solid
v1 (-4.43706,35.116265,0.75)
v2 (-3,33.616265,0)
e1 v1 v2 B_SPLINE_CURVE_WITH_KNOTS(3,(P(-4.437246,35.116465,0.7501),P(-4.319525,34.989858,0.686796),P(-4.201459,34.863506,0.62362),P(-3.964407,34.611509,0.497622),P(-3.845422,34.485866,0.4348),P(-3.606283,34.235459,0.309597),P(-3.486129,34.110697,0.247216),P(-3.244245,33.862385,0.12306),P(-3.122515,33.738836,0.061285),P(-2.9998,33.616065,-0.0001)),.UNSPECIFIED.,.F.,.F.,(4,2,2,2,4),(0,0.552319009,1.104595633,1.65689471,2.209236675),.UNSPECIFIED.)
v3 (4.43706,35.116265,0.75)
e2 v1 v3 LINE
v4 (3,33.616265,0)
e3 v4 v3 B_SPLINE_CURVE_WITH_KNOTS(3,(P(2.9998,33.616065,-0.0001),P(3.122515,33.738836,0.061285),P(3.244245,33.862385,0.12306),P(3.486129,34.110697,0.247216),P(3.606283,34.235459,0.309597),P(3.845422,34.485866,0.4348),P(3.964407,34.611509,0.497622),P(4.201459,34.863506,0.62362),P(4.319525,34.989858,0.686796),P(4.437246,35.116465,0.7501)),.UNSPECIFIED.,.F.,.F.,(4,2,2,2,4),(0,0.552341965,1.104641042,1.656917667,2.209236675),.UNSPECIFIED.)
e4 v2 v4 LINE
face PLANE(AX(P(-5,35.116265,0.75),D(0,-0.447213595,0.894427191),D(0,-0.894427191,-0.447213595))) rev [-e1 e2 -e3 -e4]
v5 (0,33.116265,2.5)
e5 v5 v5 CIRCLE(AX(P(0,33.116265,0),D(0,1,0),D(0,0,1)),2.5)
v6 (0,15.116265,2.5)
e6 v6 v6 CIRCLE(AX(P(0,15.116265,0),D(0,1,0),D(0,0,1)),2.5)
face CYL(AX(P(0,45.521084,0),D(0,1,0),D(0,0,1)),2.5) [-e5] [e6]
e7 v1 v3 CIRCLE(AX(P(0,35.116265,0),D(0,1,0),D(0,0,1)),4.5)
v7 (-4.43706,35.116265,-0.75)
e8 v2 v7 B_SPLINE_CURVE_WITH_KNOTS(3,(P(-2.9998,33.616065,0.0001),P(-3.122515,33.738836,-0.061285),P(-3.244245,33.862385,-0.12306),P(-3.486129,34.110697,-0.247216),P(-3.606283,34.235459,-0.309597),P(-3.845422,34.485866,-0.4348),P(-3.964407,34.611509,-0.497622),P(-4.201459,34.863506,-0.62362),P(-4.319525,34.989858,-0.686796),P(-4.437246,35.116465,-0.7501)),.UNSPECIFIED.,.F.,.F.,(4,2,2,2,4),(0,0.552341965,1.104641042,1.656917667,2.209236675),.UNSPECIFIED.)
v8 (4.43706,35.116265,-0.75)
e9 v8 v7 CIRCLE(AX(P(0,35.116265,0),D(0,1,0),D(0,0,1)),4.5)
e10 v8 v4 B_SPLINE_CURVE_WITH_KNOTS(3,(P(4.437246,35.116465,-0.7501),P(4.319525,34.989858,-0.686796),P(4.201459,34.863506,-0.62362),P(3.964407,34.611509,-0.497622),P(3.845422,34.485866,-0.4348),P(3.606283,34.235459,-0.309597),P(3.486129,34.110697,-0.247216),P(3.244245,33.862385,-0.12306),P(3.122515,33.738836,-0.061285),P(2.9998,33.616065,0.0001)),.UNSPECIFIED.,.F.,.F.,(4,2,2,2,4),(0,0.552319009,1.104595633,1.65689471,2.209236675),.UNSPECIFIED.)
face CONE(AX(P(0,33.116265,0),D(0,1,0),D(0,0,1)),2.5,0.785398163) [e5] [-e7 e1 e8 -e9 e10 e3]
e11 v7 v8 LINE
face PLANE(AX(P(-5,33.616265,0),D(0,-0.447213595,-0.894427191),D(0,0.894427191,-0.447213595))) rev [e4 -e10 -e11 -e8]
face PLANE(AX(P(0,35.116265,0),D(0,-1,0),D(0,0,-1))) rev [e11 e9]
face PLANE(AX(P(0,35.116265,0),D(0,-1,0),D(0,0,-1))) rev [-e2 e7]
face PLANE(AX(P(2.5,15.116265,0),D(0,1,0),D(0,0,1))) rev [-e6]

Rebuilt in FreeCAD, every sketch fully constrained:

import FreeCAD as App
import Part
import Sketcher
from FreeCAD import Vector
Q = App.Units.Quantity

doc = App.newDocument("Part")
body = doc.addObject("PartDesign::Body", "Body")

sketch1 = body.newObject("Sketcher::SketchObject", "Sketch")
sketch1.AttachmentSupport = (doc.getObject("XY_Plane"), [""])
sketch1.MapMode = "FlatFace"
sketch1.addGeometry([
    Part.LineSegment(Vector(4.5, 35.1, 0), Vector(0, 35.1, 0)),
    Part.LineSegment(Vector(0, 35.1, 0), Vector(0, 15.1, 0)),
    Part.LineSegment(Vector(0, 15.1, 0), Vector(2.5, 15.1, 0)),
    Part.LineSegment(Vector(2.5, 15.1, 0), Vector(2.5, 33.1, 0)),
    Part.LineSegment(Vector(2.5, 33.1, 0), Vector(4.5, 35.1, 0)),
], False)
sketch1.addConstraint([
    Sketcher.Constraint("Coincident", 0, 2, 1, 1),
    Sketcher.Constraint("Coincident", 1, 2, 2, 1),
    Sketcher.Constraint("Coincident", 2, 2, 3, 1),
    Sketcher.Constraint("Coincident", 3, 2, 4, 1),
    Sketcher.Constraint("Coincident", 4, 2, 0, 1),
    Sketcher.Constraint("Horizontal", 0),
    Sketcher.Constraint("Vertical", 1),
    Sketcher.Constraint("Horizontal", 2),
    Sketcher.Constraint("Vertical", 3),
    Sketcher.Constraint("PointOnObject", 0, 2, -2),
    Sketcher.Constraint("DistanceY", 1, 2, 1, 1, 20.0),
    Sketcher.Constraint("DistanceY", 3, 1, 3, 2, 18.0),
    Sketcher.Constraint("Angle", 4, Q("45 deg")),
    Sketcher.Constraint("DistanceX", 0, 2, 0, 1, 4.5),
    Sketcher.Constraint("DistanceY", -1, 1, 0, 2, 35.116265),
])
revolution = body.newObject("PartDesign::Revolution", "Revolution")
revolution.Profile = sketch1
revolution.ReferenceAxis = (sketch1, ["V_Axis"])
revolution.Angle = 360

sketch2 = body.newObject("Sketcher::SketchObject", "Sketch001")
sketch2.AttachmentSupport = (doc.getObject("YZ_Plane"), [""])
sketch2.MapMode = "FlatFace"
sketch2.addGeometry([
    Part.LineSegment(Vector(35.1, 0.8, 0), Vector(33.6, 0, 0)),
    Part.LineSegment(Vector(33.6, 0, 0), Vector(35.1, -0.8, 0)),
    Part.LineSegment(Vector(35.1, -0.8, 0), Vector(35.1, 0.8, 0)),
], False)
sketch2.addConstraint([
    Sketcher.Constraint("Coincident", 0, 2, 1, 1),
    Sketcher.Constraint("Coincident", 1, 2, 2, 1),
    Sketcher.Constraint("Coincident", 2, 2, 0, 1),
    Sketcher.Constraint("Vertical", 2),
    Sketcher.Constraint("PointOnObject", 0, 2, -1),
    Sketcher.Constraint("Equal", 0, 1),
    Sketcher.Constraint("DistanceY", 2, 1, 2, 2, 1.5),
    Sketcher.Constraint("DistanceX", 0, 2, 1, 2, 1.5),
    Sketcher.Constraint("DistanceX", -1, 1, 0, 2, 33.616265),
])
pocket1 = body.newObject("PartDesign::Pocket", "Pocket")
pocket1.Profile = sketch2
pocket1.Length = 10
pocket1.Midplane = True

doc.recompute()
